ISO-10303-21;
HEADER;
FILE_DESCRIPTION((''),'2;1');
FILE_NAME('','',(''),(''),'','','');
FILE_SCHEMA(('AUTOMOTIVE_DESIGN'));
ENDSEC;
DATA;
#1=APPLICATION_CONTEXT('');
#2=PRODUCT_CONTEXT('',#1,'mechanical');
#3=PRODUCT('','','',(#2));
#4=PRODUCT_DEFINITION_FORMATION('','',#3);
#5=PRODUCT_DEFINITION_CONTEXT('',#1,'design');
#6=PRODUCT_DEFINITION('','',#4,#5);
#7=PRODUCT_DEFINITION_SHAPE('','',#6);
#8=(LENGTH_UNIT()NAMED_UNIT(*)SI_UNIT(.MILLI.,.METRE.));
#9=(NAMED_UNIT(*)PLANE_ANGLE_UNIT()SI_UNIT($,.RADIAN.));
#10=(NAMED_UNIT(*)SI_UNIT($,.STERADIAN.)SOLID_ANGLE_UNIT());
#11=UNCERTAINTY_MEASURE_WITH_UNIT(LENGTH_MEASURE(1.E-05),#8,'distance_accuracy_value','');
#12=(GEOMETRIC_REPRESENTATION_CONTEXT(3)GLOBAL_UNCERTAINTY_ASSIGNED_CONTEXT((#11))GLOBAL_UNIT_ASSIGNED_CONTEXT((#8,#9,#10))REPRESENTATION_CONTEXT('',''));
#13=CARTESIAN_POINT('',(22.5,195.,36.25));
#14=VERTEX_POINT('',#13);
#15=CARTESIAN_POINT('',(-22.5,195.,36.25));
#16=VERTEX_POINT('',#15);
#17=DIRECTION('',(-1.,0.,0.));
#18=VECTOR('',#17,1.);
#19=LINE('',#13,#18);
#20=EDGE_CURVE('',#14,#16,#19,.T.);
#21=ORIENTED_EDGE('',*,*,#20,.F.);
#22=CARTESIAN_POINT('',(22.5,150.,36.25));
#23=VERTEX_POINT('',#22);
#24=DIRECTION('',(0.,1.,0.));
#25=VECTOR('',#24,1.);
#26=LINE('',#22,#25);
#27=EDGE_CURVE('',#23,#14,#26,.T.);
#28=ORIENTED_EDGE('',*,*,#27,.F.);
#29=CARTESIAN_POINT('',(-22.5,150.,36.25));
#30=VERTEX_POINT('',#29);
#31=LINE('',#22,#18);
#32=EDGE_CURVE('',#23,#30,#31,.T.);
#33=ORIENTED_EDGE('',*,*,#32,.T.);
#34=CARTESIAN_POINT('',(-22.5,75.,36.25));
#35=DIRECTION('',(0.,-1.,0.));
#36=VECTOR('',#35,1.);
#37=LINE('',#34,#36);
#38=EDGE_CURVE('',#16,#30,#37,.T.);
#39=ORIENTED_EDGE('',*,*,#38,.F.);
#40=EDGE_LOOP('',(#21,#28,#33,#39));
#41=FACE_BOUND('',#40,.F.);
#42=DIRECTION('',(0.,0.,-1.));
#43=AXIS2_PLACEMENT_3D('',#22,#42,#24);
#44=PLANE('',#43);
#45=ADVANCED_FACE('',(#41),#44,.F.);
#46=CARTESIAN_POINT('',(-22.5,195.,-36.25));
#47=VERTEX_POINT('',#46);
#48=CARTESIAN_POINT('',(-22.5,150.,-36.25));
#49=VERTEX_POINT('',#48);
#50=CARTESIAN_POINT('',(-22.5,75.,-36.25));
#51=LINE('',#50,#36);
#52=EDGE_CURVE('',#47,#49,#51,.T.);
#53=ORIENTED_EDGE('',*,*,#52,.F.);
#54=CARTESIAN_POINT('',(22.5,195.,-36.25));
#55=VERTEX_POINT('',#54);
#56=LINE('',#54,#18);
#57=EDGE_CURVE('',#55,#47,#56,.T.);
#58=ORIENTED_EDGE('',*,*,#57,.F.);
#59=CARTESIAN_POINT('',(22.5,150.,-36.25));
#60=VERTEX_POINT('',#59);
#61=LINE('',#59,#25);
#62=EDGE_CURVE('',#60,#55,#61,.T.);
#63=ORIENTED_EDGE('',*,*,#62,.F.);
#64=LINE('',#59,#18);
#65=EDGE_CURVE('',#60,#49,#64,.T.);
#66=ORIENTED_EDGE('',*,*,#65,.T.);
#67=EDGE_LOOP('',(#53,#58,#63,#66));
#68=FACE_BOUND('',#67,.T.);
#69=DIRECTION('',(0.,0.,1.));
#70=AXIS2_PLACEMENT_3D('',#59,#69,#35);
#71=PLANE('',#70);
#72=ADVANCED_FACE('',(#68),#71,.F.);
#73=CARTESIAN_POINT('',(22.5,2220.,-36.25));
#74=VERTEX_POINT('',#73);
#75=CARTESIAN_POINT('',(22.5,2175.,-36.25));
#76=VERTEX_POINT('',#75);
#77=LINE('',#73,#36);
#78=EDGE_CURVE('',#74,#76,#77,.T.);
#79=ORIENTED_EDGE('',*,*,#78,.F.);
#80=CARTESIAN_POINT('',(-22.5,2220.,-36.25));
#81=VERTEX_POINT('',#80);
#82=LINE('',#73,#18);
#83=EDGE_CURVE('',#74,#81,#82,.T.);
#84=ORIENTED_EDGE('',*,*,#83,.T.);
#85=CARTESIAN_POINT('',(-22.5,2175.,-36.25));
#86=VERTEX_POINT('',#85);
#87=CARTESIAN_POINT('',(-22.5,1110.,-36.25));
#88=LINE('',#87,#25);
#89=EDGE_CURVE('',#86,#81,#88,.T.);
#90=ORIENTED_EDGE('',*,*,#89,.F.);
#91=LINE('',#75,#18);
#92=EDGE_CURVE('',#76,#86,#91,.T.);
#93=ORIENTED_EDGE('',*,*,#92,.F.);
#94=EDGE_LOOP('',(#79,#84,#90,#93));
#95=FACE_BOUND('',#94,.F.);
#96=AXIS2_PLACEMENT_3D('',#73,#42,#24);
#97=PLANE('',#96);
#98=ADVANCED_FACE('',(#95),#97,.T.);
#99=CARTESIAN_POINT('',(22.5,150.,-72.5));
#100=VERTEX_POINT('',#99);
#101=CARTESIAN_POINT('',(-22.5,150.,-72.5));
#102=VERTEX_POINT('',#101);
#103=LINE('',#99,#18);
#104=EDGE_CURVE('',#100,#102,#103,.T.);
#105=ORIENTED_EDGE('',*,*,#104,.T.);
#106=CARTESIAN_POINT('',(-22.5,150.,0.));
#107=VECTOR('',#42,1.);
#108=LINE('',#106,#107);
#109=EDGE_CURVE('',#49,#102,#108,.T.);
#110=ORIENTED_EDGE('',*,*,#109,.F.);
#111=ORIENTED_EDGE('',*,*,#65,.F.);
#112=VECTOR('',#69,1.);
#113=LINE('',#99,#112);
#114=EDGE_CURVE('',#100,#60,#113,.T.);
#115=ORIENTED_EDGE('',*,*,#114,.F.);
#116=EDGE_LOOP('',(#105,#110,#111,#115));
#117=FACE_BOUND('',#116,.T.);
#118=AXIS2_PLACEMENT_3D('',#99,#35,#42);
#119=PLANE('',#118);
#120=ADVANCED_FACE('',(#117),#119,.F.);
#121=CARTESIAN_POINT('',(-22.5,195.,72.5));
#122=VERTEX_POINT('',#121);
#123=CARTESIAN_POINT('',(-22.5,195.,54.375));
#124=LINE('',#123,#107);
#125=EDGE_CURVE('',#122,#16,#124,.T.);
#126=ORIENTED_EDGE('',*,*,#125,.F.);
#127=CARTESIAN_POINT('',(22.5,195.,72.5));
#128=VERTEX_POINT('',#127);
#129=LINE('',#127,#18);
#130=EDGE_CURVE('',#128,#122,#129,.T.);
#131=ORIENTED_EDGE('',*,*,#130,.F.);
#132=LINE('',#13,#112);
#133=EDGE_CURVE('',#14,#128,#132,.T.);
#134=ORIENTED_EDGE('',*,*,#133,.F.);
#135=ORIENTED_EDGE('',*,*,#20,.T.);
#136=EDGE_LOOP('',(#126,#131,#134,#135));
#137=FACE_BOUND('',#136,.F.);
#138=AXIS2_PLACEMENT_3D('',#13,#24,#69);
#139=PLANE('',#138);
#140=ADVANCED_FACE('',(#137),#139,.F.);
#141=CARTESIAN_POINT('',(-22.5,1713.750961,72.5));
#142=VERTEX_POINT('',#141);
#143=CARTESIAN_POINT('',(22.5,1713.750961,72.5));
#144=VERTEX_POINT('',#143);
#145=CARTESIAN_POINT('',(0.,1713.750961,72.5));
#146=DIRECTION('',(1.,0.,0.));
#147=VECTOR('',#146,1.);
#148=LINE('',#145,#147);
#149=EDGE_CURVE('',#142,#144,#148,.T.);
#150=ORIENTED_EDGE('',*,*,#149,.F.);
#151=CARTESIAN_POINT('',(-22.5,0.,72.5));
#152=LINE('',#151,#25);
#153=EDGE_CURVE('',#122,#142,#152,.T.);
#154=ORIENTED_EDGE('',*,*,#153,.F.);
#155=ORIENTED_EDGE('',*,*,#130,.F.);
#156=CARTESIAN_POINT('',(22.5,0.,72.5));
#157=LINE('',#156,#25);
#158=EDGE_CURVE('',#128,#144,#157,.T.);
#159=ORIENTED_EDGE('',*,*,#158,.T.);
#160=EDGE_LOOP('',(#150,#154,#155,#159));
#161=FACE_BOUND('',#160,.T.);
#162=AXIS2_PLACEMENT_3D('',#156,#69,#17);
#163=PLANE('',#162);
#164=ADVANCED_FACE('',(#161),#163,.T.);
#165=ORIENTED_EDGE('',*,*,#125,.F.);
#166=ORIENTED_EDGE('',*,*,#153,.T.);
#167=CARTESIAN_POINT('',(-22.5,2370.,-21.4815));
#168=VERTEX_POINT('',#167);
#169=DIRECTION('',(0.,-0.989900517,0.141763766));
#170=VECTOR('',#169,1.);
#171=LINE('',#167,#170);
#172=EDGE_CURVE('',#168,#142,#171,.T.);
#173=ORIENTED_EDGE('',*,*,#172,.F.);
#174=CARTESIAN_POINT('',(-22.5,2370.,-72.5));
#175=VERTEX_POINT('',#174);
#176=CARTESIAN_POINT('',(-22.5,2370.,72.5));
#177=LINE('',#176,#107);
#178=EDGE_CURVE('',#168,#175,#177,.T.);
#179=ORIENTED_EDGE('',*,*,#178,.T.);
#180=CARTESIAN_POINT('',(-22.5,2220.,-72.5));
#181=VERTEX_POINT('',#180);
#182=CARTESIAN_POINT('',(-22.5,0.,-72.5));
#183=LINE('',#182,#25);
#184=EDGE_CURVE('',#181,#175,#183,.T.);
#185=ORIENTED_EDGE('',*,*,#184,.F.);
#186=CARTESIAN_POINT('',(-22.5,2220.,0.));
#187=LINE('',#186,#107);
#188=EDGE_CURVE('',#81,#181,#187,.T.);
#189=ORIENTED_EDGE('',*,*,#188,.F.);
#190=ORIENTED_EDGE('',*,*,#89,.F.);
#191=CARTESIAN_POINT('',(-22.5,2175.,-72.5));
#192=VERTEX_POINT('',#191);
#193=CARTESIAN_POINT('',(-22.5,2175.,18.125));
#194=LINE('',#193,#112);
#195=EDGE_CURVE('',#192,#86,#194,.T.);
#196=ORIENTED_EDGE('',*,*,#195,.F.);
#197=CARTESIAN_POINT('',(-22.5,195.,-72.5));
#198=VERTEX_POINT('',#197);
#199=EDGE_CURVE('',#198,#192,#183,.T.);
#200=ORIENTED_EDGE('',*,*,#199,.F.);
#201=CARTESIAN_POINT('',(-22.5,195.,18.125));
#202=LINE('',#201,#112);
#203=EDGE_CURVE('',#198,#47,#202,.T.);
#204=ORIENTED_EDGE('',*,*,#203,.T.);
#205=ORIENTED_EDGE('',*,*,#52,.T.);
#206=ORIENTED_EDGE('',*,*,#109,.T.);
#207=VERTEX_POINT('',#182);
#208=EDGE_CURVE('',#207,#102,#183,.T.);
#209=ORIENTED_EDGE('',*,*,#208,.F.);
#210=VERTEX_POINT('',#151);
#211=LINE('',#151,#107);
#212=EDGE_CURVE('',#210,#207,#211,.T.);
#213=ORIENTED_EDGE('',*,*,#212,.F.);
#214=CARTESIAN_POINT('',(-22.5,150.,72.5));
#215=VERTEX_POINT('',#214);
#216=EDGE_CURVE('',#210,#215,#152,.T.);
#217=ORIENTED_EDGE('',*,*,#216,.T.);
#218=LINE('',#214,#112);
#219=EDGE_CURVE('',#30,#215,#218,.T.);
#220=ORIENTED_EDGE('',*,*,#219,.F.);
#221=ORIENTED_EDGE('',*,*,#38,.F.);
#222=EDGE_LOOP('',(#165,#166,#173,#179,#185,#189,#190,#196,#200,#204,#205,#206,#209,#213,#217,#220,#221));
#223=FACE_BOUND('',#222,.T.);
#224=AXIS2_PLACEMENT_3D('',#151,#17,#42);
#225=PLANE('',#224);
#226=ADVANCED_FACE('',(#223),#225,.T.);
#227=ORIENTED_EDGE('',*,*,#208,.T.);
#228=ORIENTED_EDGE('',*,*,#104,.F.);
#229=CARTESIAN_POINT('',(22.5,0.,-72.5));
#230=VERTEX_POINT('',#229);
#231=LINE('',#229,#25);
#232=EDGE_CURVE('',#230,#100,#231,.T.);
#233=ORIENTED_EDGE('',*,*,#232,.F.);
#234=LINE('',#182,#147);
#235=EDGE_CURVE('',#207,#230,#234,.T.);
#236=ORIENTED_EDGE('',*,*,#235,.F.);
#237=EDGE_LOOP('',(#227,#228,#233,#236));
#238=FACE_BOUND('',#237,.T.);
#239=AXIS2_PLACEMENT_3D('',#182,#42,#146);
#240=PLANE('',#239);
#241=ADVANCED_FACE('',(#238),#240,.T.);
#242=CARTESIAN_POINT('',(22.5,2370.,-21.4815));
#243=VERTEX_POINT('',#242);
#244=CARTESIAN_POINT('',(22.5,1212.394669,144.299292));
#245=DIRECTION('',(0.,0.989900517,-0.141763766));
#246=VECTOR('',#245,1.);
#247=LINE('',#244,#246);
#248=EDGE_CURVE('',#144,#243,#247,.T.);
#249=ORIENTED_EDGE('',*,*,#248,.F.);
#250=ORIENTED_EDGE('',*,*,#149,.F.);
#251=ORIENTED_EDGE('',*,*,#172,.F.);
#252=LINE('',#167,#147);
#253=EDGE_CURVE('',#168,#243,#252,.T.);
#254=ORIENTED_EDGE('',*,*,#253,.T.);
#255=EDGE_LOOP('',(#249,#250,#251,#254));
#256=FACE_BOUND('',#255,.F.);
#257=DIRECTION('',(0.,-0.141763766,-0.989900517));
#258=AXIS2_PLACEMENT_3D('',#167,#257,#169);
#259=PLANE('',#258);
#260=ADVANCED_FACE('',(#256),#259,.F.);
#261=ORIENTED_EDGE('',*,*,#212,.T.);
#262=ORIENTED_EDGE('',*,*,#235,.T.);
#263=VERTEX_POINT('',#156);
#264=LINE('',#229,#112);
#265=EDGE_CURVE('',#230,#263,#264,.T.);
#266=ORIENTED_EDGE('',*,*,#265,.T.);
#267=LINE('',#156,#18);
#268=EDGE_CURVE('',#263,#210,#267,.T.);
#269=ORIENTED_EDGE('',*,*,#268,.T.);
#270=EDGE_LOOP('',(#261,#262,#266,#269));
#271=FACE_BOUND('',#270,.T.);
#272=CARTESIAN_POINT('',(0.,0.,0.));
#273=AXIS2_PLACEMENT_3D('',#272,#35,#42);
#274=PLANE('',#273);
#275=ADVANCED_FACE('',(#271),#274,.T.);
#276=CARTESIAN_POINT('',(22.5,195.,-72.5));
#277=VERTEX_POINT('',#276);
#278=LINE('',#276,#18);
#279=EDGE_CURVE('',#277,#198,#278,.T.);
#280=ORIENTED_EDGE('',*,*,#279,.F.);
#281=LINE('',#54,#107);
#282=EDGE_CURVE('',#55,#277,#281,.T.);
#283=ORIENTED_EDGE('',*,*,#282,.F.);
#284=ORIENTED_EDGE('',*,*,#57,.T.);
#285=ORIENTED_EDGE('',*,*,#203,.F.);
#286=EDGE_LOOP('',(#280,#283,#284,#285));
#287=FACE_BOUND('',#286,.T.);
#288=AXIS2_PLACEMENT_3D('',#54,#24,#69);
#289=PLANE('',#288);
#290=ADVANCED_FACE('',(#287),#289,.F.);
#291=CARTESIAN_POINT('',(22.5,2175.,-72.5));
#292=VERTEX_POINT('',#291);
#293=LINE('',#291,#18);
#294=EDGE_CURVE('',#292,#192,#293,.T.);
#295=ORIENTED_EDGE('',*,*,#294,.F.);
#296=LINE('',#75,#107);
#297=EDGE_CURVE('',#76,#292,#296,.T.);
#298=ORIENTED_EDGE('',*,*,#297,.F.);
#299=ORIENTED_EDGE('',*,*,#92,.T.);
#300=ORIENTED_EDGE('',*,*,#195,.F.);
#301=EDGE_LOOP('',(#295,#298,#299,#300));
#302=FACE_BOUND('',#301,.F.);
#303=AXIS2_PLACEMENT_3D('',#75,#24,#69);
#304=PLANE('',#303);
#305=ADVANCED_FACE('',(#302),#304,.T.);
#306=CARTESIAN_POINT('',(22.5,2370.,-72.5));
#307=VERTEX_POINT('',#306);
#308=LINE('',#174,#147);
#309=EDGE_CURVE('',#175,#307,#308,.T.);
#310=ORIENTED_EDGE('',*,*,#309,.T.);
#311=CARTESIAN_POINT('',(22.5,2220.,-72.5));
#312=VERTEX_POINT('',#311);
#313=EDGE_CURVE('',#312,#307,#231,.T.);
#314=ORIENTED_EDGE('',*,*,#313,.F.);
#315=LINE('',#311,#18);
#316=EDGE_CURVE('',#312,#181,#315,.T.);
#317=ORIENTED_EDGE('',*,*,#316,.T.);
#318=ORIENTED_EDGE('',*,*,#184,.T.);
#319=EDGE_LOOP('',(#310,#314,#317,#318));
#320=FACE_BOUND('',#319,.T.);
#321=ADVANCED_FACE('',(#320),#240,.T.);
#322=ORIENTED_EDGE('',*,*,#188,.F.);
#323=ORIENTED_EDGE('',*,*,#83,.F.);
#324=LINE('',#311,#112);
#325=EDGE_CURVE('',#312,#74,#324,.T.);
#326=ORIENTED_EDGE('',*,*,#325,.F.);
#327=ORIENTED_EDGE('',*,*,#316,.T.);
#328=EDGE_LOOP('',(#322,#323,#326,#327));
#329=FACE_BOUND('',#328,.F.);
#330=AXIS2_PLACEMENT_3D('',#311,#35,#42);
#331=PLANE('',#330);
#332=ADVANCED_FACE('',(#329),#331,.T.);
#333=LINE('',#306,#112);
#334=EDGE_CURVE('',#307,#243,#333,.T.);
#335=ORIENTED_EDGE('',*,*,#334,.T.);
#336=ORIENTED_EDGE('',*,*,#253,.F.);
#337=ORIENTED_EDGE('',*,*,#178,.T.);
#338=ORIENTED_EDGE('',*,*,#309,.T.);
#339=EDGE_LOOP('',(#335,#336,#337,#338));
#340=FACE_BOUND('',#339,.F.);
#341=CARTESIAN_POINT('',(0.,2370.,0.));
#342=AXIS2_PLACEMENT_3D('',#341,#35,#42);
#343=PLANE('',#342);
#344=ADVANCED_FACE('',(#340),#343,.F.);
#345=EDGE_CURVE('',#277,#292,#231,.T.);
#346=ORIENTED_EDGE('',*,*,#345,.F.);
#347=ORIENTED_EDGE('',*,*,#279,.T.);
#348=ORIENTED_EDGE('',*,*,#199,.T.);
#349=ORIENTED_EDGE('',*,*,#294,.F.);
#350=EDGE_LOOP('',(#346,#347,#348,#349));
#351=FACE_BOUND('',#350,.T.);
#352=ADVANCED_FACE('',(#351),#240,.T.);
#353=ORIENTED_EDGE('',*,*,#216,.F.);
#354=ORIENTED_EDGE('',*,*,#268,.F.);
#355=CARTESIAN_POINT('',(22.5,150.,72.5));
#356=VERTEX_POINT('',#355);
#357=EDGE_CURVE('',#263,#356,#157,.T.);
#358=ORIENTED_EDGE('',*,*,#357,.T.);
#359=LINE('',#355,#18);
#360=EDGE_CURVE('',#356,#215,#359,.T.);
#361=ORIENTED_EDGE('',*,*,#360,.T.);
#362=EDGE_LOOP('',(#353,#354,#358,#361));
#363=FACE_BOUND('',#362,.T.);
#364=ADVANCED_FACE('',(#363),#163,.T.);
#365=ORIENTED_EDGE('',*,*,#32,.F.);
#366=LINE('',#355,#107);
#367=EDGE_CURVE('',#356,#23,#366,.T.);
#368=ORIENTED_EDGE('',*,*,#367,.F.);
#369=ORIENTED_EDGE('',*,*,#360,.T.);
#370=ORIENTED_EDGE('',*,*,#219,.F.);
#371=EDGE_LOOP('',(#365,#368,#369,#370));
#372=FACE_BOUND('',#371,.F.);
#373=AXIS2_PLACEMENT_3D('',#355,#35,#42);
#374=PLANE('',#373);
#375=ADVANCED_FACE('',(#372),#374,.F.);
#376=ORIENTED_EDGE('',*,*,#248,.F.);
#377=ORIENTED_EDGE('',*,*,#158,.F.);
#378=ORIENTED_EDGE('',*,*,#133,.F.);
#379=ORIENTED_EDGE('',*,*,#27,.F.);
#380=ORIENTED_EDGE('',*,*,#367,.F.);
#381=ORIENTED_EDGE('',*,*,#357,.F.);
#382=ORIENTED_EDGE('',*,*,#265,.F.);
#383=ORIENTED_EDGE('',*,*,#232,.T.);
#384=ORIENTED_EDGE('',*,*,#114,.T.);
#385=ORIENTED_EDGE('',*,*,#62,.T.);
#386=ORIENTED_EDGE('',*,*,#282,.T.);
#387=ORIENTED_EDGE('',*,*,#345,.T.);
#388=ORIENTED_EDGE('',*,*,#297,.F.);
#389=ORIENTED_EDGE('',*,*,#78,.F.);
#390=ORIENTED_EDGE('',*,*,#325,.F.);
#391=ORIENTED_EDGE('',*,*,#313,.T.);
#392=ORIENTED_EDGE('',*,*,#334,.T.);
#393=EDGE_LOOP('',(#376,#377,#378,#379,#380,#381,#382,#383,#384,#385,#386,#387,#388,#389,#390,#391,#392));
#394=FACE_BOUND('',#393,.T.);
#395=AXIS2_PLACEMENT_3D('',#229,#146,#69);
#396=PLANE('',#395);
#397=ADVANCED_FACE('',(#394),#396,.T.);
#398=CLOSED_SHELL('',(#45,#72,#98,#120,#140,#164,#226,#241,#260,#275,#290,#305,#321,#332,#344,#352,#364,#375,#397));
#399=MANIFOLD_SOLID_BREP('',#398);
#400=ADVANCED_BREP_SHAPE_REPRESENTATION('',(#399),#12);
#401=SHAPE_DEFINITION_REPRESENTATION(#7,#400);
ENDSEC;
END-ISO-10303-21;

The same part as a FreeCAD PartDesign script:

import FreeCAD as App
import Part
import Sketcher
from FreeCAD import Vector
Q = App.Units.Quantity


def add_polygon(sketch, points):
    """Adds a closed chain of lines whose ends are joined by coincident constraints."""
    first, n = sketch.GeometryCount, len(points)
    for a, b in zip(points, points[1:] + points[:1]):
        sketch.addGeometry(Part.LineSegment(App.Vector(*a, 0), App.Vector(*b, 0)), False)
    for i in range(n):
        sketch.addConstraint(Sketcher.Constraint("Coincident", first + i, 2, first + (i + 1) % n, 1))

doc = App.newDocument("Part")
params = doc.addObject("Spreadsheet::Sheet", "Params")
for row, (alias, value) in enumerate([
    ("sketch1_width", "45 mm"),
    ("sketch1_height", "145 mm"),
    ("pad1_length", "2370 mm"),
    ("sketch2_width", "45 mm"),
    ("sketch2_height", "36.25 mm"),
    ("pocket1_length", "89.2118 mm"),
    ("pocket2_length", "291.9601 mm"),
], start=1):
    params.set(f"A{row}", alias)
    params.set(f"B{row}", "=" + value)
    params.setAlias(f"B{row}", alias)

body = doc.addObject("PartDesign::Body", "Body")

# Sketch on XZ plane
sketch1 = body.newObject("Sketcher::SketchObject", "Sketch")
sketch1.AttachmentSupport = (doc.getObject("XZ_Plane"), [""])
sketch1.MapMode = "FlatFace"
add_polygon(sketch1, [(-22, 72), (-22, -72), (22, -72), (22, 72)])  # lines 0-3
sketch1.addConstraint(Sketcher.Constraint("Vertical", 0))
sketch1.addConstraint(Sketcher.Constraint("Horizontal", 1))
sketch1.addConstraint(Sketcher.Constraint("Vertical", 2))
sketch1.addConstraint(Sketcher.Constraint("Horizontal", 3))
sketch1.addConstraint(Sketcher.Constraint("Symmetric", 0, 2, 2, 2, -1, 1))
sketch1.addConstraint(Sketcher.Constraint("DistanceX", 1, 1, 1, 2, 45.0))
sketch1.addConstraint(Sketcher.Constraint("DistanceY", 0, 2, 0, 1, 145.0))
sketch1.setExpression("Constraints[9]", "Params.sketch1_width")
sketch1.setExpression("Constraints[10]", "Params.sketch1_height")
pad1 = body.newObject("PartDesign::Pad", "Pad")
pad1.Profile = sketch1
pad1.setExpression("Length", "Params.pad1_length")
pad1.Reversed = True

# Sketch on YZ plane
sketch2 = body.newObject("Sketcher::SketchObject", "Sketch001")
sketch2.AttachmentSupport = (doc.getObject("YZ_Plane"), [""])
sketch2.MapMode = "FlatFace"
sketch2.AttachmentOffset = App.Placement(Vector(0, 0, 22.5), App.Rotation())
add_polygon(sketch2, [(2220, 36), (2220, 72), (2175, 72), (2175, 36)])  # lines 0-3
add_polygon(sketch2, [(195, 72), (150, 72), (150, 36), (195, 36)])  # lines 4-7
sketch2.addConstraint(Sketcher.Constraint("Vertical", 0))
sketch2.addConstraint(Sketcher.Constraint("Horizontal", 1))
sketch2.addConstraint(Sketcher.Constraint("Vertical", 2))
sketch2.addConstraint(Sketcher.Constraint("Horizontal", 3))
sketch2.addConstraint(Sketcher.Constraint("Horizontal", 4))
sketch2.addConstraint(Sketcher.Constraint("Vertical", 5))
sketch2.addConstraint(Sketcher.Constraint("Horizontal", 6))
sketch2.addConstraint(Sketcher.Constraint("Vertical", 7))
sketch2.addConstraint(Sketcher.Constraint("Horizontal", 1, 2, 4, 2))
sketch2.addConstraint(Sketcher.Constraint("Horizontal", 3, 2, 5, 2))
sketch2.addConstraint(Sketcher.Constraint("Equal", 3, 4))
sketch2.addConstraint(Sketcher.Constraint("DistanceX", 1, 2, 1, 1, 45.0))
sketch2.addConstraint(Sketcher.Constraint("DistanceX", -1, 1, 0, 2, 2220.0))
sketch2.addConstraint(Sketcher.Constraint("DistanceX", -1, 1, 4, 2, 150.0))
sketch2.addConstraint(Sketcher.Constraint("DistanceY", 0, 1, 0, 2, 36.25))
sketch2.addConstraint(Sketcher.Constraint("DistanceY", -1, 1, 0, 2, 72.5))
sketch2.setExpression("Constraints[19]", "Params.sketch2_width")
sketch2.setExpression("Constraints[22]", "Params.sketch2_height")
pocket1 = body.newObject("PartDesign::Pocket", "Pocket")
pocket1.Profile = sketch2
pocket1.setExpression("Length", "Params.pocket1_length")
doc.recompute()

mirrored = body.newObject("PartDesign::Mirrored", "Mirrored")
mirrored.Originals = [pocket1]
mirrored.MirrorPlane = (doc.getObject("XY_Plane"), [""])
body.Tip = mirrored

# Sketch on YZ plane
sketch3 = body.newObject("Sketcher::SketchObject", "Sketch002")
sketch3.AttachmentSupport = (doc.getObject("YZ_Plane"), [""])
sketch3.MapMode = "FlatFace"
sketch3.AttachmentOffset = App.Placement(Vector(0, 0, -22.5), App.Rotation())
add_polygon(sketch3, [(2370, 75), (2370, -21), (1693, 75)])  # lines 0-2
sketch3.addConstraint(Sketcher.Constraint("Vertical", 0))
sketch3.addConstraint(Sketcher.Constraint("Horizontal", 2))
sketch3.addConstraint(Sketcher.Constraint("DistanceX", -1, 1, 0, 2, 2370.0))
sketch3.addConstraint(Sketcher.Constraint("Angle", 1, Q("171.85 deg")))
sketch3.addConstraint(Sketcher.Constraint("Distance", 1, 683.444))
sketch3.addConstraint(Sketcher.Constraint("DistanceY", -1, 1, 1, 2, 75.406))
pocket2 = body.newObject("PartDesign::Pocket", "Pocket001")
pocket2.Profile = sketch3
pocket2.setExpression("Length", "Params.pocket2_length")
pocket2.Reversed = True

doc.recompute()
